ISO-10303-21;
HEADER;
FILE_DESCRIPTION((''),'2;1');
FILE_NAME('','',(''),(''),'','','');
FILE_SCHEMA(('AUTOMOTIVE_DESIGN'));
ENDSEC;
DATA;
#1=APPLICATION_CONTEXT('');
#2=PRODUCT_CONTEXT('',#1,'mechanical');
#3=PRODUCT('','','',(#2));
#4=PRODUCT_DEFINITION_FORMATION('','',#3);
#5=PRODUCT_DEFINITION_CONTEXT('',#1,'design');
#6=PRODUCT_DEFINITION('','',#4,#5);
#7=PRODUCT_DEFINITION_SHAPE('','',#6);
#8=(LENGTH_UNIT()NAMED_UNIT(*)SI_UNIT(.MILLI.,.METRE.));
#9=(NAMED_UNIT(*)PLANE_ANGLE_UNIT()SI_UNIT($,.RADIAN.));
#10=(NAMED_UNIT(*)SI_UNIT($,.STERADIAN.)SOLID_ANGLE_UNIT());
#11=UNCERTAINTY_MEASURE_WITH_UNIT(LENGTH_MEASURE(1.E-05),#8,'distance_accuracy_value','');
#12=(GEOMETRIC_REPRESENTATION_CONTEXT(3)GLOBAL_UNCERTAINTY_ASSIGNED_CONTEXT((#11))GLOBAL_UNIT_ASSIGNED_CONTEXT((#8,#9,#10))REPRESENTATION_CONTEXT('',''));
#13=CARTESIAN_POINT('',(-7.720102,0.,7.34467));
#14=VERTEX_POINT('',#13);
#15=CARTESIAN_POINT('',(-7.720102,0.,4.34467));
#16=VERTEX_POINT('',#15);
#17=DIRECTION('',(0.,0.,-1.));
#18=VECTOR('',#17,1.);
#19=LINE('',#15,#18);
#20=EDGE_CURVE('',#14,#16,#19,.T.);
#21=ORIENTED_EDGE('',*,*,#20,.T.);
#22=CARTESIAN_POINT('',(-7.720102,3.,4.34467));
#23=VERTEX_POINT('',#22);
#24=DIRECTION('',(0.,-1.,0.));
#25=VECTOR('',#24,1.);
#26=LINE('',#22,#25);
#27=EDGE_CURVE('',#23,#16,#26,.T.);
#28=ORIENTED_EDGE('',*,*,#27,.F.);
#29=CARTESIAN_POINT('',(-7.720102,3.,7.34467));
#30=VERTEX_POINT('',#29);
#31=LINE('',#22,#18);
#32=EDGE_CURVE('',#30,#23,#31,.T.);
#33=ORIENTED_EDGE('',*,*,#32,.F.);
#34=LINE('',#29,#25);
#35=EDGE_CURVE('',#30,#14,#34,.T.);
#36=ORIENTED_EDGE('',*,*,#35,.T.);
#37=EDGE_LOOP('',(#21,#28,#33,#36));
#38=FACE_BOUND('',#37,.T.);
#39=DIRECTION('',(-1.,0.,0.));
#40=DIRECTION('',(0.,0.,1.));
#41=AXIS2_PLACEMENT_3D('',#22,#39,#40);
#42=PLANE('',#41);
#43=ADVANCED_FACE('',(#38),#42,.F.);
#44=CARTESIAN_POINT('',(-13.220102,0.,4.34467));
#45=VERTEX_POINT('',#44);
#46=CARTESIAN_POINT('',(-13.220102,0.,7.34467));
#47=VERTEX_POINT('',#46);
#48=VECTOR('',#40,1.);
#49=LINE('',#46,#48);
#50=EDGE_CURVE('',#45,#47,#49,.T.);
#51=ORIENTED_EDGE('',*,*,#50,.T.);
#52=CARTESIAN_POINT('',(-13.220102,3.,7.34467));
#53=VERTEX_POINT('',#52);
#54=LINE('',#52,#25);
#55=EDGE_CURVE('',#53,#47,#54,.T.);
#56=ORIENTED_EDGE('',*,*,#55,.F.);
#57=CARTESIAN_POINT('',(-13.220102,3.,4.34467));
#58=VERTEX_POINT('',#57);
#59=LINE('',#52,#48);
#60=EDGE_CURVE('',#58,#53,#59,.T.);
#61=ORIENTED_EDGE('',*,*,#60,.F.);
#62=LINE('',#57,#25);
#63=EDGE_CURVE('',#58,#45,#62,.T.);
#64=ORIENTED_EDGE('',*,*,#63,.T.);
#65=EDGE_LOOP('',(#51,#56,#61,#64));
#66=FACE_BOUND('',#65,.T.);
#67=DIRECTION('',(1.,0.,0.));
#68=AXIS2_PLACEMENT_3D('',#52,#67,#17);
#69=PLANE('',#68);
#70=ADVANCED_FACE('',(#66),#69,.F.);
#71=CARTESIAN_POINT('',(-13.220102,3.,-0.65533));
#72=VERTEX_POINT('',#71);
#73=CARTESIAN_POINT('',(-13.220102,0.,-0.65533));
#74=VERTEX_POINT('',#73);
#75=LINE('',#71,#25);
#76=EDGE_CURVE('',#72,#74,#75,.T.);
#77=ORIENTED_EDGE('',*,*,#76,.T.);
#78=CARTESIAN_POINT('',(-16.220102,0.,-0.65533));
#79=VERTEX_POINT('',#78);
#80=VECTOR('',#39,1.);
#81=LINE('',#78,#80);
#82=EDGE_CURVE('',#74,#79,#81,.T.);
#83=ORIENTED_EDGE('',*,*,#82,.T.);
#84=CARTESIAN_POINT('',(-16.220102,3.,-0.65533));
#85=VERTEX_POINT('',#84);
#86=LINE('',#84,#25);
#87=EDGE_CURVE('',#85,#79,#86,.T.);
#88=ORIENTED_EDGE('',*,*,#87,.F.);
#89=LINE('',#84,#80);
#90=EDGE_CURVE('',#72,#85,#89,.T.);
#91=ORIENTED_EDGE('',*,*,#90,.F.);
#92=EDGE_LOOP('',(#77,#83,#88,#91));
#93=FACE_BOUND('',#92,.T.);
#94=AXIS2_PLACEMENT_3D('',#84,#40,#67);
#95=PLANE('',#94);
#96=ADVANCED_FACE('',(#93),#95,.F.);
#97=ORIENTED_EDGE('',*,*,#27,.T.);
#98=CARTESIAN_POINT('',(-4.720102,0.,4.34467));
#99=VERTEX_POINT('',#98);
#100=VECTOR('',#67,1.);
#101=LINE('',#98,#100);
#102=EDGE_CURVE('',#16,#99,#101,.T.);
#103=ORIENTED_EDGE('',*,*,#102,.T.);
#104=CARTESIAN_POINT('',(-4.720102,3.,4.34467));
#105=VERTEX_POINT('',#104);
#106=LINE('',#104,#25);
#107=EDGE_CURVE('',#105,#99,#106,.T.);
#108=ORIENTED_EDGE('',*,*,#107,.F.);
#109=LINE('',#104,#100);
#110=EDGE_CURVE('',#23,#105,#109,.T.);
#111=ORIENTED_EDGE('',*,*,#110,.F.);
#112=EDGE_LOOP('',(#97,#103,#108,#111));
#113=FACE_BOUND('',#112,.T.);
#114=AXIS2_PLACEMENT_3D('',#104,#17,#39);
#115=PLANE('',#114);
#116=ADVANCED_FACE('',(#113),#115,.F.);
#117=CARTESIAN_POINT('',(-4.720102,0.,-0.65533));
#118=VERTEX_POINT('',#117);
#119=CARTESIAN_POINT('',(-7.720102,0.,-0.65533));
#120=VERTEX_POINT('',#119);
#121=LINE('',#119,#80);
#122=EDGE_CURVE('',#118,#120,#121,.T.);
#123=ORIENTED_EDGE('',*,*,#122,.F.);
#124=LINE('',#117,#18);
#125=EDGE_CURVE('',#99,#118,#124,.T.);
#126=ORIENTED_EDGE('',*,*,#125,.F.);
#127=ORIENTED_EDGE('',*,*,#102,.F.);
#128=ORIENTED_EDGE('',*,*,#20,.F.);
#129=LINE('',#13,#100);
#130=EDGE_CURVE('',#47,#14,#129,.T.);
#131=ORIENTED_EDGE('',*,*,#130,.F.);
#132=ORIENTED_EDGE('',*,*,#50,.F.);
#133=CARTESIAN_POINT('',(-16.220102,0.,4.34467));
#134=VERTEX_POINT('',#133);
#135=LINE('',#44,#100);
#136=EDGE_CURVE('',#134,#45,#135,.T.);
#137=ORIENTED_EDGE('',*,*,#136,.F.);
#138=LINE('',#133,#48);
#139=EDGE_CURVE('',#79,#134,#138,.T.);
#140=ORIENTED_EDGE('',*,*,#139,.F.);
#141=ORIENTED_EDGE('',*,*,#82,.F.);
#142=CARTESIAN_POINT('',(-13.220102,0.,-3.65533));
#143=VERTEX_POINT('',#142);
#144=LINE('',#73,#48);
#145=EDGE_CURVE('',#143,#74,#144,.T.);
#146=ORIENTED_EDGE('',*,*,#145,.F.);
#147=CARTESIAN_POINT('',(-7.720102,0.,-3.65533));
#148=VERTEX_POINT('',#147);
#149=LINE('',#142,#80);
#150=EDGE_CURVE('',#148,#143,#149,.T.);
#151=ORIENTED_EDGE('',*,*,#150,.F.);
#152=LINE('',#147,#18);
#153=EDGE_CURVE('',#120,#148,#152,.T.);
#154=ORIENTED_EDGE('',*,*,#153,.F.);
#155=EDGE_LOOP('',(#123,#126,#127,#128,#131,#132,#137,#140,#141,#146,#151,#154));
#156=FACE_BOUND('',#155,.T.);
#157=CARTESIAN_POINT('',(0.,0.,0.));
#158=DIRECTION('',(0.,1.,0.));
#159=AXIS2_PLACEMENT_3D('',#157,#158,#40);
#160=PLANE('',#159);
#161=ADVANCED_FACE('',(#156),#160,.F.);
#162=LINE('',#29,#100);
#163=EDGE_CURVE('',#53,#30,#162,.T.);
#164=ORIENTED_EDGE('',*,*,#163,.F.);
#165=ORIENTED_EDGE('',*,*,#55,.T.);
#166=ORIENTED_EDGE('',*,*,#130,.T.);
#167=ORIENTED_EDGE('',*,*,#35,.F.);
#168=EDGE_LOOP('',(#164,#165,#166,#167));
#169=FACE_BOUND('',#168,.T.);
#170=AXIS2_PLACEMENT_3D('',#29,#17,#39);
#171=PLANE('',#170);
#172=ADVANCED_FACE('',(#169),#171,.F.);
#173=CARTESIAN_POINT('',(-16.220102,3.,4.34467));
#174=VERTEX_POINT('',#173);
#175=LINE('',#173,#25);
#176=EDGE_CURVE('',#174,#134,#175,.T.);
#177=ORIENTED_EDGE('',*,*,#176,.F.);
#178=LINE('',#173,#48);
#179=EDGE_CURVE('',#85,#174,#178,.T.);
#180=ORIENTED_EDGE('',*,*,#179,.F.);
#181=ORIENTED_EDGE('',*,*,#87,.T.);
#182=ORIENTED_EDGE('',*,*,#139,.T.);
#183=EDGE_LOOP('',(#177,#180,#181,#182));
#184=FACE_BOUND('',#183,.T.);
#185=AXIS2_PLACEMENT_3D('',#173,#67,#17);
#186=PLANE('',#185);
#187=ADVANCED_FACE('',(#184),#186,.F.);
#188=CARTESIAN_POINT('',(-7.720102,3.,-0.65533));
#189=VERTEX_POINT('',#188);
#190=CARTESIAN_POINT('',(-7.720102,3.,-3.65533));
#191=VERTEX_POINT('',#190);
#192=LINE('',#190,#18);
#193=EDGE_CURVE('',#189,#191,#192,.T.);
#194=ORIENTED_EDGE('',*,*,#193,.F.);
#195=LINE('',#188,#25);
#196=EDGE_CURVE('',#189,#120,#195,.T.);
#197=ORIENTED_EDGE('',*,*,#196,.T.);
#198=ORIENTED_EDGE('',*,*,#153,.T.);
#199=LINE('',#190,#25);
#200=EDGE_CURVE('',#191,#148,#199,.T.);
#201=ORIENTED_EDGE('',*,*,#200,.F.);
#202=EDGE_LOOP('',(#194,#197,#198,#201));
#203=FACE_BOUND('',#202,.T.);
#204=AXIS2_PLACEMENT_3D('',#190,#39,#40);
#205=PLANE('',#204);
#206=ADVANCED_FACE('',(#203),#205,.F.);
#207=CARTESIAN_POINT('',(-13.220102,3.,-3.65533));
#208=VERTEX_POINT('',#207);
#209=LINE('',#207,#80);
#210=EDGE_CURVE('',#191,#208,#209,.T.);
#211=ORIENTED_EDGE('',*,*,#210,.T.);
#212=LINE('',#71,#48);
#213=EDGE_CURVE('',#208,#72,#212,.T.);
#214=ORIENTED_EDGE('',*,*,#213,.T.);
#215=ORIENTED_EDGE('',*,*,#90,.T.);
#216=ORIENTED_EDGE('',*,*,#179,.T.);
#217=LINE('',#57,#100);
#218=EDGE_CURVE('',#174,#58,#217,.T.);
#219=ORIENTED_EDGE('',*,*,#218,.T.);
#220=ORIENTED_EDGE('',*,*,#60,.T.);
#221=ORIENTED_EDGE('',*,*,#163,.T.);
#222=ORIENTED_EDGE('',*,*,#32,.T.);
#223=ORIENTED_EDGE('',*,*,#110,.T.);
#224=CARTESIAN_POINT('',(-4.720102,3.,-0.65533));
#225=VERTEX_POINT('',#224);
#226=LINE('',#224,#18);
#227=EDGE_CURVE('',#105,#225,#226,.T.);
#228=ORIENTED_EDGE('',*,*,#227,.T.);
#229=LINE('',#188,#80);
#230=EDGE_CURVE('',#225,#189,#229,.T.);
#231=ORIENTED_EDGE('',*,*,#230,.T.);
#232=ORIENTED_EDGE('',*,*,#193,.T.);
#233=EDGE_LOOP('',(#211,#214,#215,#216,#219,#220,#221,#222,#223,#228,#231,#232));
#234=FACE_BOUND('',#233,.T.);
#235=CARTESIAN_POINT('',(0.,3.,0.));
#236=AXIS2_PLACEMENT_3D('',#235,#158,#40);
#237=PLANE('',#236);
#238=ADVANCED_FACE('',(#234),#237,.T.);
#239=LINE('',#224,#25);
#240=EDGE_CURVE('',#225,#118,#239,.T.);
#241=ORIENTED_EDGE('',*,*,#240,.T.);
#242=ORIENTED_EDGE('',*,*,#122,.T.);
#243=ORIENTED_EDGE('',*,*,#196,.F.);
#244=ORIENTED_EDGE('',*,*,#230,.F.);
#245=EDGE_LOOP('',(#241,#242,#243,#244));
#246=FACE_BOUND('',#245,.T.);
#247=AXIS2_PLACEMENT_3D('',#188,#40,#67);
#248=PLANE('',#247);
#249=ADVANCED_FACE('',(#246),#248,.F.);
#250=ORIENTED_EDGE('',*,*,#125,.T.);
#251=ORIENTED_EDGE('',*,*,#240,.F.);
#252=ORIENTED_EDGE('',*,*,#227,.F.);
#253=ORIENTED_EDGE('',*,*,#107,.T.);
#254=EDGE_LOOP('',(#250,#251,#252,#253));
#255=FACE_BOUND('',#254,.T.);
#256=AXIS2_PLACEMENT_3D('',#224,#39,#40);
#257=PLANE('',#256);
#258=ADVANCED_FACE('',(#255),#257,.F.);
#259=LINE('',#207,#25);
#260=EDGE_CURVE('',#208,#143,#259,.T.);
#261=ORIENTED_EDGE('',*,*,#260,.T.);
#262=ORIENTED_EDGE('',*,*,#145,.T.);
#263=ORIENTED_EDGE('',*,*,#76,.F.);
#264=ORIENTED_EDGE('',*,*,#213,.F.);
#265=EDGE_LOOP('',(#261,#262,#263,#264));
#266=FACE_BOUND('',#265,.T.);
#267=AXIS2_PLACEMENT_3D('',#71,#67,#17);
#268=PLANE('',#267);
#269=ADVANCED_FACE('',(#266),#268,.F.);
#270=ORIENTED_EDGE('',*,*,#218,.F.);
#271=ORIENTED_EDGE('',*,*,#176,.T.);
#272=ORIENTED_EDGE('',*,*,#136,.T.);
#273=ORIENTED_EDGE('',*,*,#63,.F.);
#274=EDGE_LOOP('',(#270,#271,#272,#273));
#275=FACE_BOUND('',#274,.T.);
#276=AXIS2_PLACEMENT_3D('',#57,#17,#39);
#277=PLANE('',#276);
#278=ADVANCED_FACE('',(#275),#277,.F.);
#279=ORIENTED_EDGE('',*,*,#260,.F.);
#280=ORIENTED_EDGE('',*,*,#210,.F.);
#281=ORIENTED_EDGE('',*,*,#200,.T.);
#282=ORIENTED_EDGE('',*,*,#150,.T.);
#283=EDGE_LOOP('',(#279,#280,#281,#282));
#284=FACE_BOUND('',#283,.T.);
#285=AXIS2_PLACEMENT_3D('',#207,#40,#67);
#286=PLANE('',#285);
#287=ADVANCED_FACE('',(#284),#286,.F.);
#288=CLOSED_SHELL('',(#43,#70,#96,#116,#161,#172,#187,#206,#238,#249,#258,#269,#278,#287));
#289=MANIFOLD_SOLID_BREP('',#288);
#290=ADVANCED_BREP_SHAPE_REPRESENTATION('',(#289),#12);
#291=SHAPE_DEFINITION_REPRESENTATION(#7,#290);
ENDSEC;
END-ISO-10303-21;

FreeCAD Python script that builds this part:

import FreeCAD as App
import Part
import Sketcher


def add_polygon(sketch, points):
    """Adds a closed chain of lines whose ends are joined by coincident constraints."""
    first, n = sketch.GeometryCount, len(points)
    for a, b in zip(points, points[1:] + points[:1]):
        sketch.addGeometry(Part.LineSegment(App.Vector(*a, 0), App.Vector(*b, 0)), False)
    for i in range(n):
        sketch.addConstraint(Sketcher.Constraint("Coincident", first + i, 2, first + (i + 1) % n, 1))

doc = App.newDocument("Part")
params = doc.addObject("Spreadsheet::Sheet", "Params")
for row, (alias, value) in enumerate([
    ("sketch1_width", "3 mm"),
    ("sketch1_height", "5 mm"),
    ("sketch1_width2", "5.5 mm"),
    ("pad1_length", "3 mm"),
], start=1):
    params.set(f"A{row}", alias)
    params.set(f"B{row}", "=" + value)
    params.setAlias(f"B{row}", alias)

body = doc.addObject("PartDesign::Body", "Body")

# Sketch on XZ plane
sketch1 = body.newObject("Sketcher::SketchObject", "Sketch")
sketch1.AttachmentSupport = (doc.getObject("XZ_Plane"), [""])
sketch1.MapMode = "FlatFace"
add_polygon(sketch1, [(-16.220102, -0.65533), (-16.220102, 4.34467), (-13.220102, 4.34467), (-13.220102, 7.34467), (-7.720102, 7.34467), (-7.720102, 4.34467), (-4.720102, 4.34467), (-4.720102, -0.65533), (-7.720102, -0.65533), (-7.720102, -3.65533), (-13.220102, -3.65533), (-13.220102, -0.65533)])  # lines 0-11
sketch1.addConstraint(Sketcher.Constraint("Vertical", 0))
sketch1.addConstraint(Sketcher.Constraint("Horizontal", 1))
sketch1.addConstraint(Sketcher.Constraint("Vertical", 2))
sketch1.addConstraint(Sketcher.Constraint("Horizontal", 3))
sketch1.addConstraint(Sketcher.Constraint("Vertical", 4))
sketch1.addConstraint(Sketcher.Constraint("Horizontal", 5))
sketch1.addConstraint(Sketcher.Constraint("Vertical", 6))
sketch1.addConstraint(Sketcher.Constraint("Horizontal", 7))
sketch1.addConstraint(Sketcher.Constraint("Vertical", 8))
sketch1.addConstraint(Sketcher.Constraint("Horizontal", 9))
sketch1.addConstraint(Sketcher.Constraint("Vertical", 10))
sketch1.addConstraint(Sketcher.Constraint("Horizontal", 11))
sketch1.addConstraint(Sketcher.Constraint("Horizontal", 1, 2, 4, 2))
sketch1.addConstraint(Sketcher.Constraint("Horizontal", 7, 2, 10, 2))
sketch1.addConstraint(Sketcher.Constraint("Vertical", 4, 2, 7, 2))
sketch1.addConstraint(Sketcher.Constraint("Vertical", 2, 2, 9, 2))
sketch1.addConstraint(Sketcher.Constraint("Equal", 1, 5))
sketch1.addConstraint(Sketcher.Constraint("Equal", 11, 2))
sketch1.addConstraint(Sketcher.Constraint("Equal", 4, 8))
sketch1.addConstraint(Sketcher.Constraint("DistanceX", 1, 1, 1, 2, 3.0))
sketch1.addConstraint(Sketcher.Constraint("DistanceY", 0, 1, 0, 2, 5.0))
sketch1.addConstraint(Sketcher.Constraint("DistanceX", 3, 1, 3, 2, 5.5))
sketch1.addConstraint(Sketcher.Constraint("DistanceX", 0, 2, -1, 1, 16.220102))
sketch1.addConstraint(Sketcher.Constraint("DistanceY", -1, 1, 0, 2, 4.34467))
sketch1.setExpression("Constraints[31]", "Params.sketch1_width")
sketch1.setExpression("Constraints[32]", "Params.sketch1_height")
sketch1.setExpression("Constraints[33]", "Params.sketch1_width2")
pad1 = body.newObject("PartDesign::Pad", "Pad")
pad1.Profile = sketch1
pad1.setExpression("Length", "Params.pad1_length")
pad1.Reversed = True

doc.recompute()
